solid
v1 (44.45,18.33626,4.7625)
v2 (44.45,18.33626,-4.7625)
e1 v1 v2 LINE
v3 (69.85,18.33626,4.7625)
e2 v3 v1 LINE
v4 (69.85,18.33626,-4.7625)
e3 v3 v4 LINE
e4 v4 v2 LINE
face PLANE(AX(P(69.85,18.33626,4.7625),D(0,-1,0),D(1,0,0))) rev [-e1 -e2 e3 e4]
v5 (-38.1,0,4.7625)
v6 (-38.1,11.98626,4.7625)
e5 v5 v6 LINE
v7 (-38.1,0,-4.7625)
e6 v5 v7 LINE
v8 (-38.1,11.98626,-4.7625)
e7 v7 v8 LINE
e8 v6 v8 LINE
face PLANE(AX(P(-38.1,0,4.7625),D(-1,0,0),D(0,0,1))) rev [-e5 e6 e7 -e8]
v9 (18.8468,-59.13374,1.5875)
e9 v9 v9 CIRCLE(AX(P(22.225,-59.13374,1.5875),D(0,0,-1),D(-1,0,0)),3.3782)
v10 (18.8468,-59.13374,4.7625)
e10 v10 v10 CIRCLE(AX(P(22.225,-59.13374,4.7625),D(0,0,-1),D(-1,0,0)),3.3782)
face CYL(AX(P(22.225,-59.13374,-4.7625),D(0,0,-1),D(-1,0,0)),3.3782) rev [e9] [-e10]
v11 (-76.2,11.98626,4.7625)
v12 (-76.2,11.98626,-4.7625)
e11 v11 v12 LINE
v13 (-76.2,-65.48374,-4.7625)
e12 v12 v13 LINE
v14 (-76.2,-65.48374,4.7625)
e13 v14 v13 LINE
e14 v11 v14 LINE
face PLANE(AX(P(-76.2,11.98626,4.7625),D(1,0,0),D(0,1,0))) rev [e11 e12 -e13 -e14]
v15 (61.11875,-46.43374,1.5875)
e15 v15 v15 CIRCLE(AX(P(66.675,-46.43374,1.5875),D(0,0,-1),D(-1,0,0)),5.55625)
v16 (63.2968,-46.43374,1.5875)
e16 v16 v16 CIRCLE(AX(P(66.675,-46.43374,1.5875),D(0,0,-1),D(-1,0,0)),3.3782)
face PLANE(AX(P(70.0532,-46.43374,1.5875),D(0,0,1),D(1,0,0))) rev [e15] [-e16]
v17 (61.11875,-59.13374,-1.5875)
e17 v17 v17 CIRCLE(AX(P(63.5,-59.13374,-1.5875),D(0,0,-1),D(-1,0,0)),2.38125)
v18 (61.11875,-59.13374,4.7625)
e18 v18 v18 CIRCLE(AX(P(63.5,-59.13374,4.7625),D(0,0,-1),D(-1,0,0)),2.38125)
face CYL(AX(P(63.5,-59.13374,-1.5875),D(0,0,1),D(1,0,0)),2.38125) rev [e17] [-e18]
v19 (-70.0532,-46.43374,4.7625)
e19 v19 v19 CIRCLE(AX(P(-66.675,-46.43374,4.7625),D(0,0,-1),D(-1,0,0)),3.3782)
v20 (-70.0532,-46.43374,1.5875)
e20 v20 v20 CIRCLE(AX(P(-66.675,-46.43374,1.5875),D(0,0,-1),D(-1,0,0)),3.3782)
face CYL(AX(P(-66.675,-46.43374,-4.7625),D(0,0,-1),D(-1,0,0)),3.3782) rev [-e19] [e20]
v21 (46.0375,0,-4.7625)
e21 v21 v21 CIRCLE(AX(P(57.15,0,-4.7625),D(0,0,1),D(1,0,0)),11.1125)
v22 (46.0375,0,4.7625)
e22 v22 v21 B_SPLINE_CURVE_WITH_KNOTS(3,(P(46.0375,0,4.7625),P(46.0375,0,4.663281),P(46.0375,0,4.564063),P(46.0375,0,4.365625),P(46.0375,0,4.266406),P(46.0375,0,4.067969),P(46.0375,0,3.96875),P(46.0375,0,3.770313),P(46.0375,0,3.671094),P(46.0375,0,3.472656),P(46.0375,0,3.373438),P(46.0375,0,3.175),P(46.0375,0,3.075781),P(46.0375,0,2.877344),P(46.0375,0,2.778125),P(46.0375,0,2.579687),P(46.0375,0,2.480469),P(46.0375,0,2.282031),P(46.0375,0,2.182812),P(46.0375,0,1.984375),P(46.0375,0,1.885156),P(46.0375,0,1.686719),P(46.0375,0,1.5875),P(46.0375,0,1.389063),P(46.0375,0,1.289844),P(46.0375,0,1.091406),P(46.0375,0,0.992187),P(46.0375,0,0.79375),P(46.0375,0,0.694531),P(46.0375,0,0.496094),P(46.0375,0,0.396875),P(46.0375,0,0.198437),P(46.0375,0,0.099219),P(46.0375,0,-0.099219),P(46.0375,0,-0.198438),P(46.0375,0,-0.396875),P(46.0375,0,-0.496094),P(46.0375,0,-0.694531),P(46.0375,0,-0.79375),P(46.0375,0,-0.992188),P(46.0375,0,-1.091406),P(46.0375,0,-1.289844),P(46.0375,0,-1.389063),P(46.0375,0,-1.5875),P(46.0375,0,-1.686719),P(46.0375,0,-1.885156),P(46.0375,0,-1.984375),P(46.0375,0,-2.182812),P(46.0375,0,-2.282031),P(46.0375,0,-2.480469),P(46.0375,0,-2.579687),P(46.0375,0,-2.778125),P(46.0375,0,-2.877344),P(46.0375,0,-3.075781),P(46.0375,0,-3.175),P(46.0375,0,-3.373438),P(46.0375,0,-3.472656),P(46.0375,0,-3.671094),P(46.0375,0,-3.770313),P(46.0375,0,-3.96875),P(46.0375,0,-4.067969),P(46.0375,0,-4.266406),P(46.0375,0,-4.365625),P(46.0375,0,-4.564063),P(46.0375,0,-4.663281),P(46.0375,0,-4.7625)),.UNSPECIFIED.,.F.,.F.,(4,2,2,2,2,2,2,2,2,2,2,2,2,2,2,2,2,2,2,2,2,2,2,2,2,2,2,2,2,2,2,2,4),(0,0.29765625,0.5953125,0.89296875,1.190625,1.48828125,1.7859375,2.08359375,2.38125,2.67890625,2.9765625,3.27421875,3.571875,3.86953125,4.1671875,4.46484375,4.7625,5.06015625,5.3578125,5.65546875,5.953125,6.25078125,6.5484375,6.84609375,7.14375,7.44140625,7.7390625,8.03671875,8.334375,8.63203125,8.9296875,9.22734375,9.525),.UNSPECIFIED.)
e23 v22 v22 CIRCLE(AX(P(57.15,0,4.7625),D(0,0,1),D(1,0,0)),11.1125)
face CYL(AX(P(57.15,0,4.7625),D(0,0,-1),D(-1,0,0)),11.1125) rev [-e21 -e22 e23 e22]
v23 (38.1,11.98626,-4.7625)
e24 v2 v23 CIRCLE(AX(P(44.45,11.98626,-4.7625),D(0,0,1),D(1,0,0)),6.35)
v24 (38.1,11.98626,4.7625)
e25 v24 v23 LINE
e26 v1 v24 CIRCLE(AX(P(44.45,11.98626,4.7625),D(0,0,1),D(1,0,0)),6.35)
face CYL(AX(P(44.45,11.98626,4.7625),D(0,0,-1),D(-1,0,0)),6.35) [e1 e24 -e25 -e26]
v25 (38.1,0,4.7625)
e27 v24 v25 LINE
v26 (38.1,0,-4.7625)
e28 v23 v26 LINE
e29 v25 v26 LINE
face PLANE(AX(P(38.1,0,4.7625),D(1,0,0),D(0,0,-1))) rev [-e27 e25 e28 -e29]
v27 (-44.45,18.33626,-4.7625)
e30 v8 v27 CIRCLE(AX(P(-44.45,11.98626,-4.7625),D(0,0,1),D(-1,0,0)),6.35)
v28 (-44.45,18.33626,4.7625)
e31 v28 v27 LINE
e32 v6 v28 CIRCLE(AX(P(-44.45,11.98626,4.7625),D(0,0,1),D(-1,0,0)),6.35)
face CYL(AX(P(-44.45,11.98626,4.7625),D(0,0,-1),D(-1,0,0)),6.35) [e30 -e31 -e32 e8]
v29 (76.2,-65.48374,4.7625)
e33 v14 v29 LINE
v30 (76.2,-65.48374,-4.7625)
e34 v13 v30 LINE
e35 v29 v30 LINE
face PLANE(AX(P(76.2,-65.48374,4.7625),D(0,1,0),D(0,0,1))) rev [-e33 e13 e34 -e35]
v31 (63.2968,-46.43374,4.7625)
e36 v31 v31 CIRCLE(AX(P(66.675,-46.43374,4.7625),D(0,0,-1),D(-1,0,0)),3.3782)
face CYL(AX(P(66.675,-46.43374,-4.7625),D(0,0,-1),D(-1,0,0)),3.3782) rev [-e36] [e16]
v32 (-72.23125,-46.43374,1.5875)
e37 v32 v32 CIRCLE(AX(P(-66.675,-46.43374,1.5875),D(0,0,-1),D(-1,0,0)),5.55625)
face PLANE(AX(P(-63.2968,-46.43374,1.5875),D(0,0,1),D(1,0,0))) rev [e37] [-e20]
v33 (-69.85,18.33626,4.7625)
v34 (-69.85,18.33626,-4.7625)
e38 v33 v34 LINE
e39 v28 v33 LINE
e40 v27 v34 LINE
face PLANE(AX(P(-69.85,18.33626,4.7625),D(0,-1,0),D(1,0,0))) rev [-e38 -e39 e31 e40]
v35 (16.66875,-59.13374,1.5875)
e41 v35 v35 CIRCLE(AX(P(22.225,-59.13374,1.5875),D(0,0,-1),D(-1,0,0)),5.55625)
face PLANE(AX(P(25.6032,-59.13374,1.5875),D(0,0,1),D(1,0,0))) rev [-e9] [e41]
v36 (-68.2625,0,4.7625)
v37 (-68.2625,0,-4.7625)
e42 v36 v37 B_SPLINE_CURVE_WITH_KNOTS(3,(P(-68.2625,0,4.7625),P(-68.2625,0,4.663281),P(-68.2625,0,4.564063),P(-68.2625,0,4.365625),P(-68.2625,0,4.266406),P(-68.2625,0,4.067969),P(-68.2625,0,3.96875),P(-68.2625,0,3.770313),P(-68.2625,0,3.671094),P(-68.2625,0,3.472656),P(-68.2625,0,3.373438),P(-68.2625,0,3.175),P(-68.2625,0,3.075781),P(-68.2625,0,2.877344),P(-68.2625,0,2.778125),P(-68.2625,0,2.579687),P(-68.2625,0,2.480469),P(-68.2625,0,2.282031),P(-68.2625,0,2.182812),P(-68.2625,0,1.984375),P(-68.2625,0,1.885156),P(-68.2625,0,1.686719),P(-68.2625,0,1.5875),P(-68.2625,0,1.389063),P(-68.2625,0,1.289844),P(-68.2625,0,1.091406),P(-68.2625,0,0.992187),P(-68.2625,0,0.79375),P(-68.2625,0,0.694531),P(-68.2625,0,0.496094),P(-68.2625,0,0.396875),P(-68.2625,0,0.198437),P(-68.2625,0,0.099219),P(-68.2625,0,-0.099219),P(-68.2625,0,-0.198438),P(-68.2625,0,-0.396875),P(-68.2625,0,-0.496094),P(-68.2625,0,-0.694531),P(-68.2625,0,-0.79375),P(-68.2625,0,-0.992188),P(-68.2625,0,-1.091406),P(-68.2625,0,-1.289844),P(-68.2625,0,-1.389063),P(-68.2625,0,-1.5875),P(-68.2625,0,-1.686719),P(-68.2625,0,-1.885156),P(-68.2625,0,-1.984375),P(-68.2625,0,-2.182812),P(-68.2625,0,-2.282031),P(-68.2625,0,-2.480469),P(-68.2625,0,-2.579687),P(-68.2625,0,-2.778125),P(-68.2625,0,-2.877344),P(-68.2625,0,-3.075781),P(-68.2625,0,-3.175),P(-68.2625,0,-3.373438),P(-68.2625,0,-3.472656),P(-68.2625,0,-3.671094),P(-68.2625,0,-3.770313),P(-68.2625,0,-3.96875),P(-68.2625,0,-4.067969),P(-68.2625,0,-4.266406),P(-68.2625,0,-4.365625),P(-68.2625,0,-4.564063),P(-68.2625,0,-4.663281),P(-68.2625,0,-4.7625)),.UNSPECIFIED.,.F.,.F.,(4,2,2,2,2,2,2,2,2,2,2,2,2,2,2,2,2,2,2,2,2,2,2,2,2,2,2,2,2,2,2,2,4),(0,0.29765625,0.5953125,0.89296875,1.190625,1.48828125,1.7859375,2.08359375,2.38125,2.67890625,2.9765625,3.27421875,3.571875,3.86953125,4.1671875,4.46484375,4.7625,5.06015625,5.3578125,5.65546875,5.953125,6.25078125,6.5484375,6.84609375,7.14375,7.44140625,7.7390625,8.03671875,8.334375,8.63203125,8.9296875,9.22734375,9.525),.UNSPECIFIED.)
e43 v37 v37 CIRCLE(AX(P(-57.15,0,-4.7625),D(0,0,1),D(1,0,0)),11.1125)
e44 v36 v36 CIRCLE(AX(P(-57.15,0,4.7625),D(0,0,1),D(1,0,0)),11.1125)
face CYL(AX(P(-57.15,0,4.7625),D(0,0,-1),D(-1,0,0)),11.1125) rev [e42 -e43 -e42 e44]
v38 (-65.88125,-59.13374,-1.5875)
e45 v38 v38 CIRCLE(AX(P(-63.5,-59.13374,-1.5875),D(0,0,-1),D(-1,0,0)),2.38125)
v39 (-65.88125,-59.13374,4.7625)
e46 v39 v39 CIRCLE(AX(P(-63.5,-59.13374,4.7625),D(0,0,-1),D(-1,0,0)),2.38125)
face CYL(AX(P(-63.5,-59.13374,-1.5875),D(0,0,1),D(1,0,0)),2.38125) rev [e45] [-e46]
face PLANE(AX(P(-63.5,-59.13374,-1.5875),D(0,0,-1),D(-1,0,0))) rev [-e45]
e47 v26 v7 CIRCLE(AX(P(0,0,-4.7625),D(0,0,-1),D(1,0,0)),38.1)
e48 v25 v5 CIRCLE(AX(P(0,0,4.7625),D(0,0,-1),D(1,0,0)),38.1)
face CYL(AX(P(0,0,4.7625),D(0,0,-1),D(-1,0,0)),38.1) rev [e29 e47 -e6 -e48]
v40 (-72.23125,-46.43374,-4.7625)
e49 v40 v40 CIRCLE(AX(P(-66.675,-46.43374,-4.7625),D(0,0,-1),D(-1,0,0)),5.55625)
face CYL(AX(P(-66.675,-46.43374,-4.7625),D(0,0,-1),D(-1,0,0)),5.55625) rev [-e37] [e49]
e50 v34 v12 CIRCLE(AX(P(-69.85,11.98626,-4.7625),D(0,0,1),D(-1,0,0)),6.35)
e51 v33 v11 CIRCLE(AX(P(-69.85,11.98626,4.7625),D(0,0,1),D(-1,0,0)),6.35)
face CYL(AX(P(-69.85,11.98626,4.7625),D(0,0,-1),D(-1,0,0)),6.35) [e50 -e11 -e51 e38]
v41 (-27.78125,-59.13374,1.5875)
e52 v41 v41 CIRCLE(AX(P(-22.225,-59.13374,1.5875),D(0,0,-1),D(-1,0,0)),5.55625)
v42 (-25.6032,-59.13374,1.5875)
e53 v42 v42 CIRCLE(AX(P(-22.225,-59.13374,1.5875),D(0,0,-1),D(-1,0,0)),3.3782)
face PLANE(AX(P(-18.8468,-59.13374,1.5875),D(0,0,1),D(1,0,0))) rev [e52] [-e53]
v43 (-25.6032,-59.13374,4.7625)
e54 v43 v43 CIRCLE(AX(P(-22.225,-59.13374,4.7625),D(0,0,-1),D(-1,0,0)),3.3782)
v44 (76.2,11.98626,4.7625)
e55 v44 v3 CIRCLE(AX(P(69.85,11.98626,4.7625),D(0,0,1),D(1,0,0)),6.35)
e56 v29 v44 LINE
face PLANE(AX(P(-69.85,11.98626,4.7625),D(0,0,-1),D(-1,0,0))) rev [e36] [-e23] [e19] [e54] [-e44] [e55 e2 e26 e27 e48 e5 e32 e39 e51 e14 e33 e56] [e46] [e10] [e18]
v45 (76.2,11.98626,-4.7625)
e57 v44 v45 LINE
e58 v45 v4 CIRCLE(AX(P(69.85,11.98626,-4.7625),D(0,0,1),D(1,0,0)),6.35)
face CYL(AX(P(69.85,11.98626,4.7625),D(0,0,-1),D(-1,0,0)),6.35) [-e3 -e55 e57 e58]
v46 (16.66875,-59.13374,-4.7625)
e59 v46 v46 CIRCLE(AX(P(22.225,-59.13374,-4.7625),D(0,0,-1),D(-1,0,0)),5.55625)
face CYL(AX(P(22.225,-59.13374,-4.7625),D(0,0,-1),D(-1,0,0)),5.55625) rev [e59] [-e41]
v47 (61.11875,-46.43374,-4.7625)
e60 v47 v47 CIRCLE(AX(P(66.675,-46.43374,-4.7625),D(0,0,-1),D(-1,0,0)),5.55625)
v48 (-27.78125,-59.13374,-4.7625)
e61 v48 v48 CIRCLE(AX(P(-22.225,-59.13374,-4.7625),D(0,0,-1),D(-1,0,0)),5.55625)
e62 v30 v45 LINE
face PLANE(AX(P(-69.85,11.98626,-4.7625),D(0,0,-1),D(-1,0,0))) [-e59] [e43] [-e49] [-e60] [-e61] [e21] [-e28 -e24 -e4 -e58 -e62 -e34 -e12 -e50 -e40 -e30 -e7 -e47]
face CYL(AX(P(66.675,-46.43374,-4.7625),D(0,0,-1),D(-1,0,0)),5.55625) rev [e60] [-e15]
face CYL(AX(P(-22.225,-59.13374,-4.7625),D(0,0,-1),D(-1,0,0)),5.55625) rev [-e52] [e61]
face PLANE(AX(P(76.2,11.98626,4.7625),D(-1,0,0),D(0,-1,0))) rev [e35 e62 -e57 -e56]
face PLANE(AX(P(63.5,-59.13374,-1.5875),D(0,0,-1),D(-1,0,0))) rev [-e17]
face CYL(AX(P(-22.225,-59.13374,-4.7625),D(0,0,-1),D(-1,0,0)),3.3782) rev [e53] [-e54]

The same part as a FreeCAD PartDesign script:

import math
import FreeCAD as App
import Part
import Sketcher
Q = App.Units.Quantity

doc = App.newDocument("Part")
body = doc.addObject("PartDesign::Body", "Body")

# Sketch on XY plane
sketch1 = body.newObject("Sketcher::SketchObject", "Sketch")
sketch1.AttachmentSupport = (doc.getObject("XY_Plane"), [""])
sketch1.MapMode = "FlatFace"
sketch1.addGeometry([
    Part.LineSegment(App.Vector(76, -65, 0), App.Vector(76, 12, 0)),  # 0
    Part.ArcOfCircle(Part.Circle(App.Vector(70, 12, 0), App.Vector(0, 0, 1), 6), math.radians(0), math.radians(90)),  # 1
    Part.LineSegment(App.Vector(70, 18, 0), App.Vector(44, 18, 0)),  # 2
    Part.ArcOfCircle(Part.Circle(App.Vector(44, 12, 0), App.Vector(0, 0, 1), 6), math.radians(90), math.radians(180)),  # 3
    Part.LineSegment(App.Vector(38, 12, 0), App.Vector(38, 0, 0)),  # 4
    Part.ArcOfCircle(Part.Circle(App.Vector(0, 0, 0), App.Vector(0, 0, 1), 38), math.radians(180), math.radians(360)),  # 5
    Part.LineSegment(App.Vector(-38, 0, 0), App.Vector(-38, 12, 0)),  # 6
    Part.ArcOfCircle(Part.Circle(App.Vector(-44, 12, 0), App.Vector(0, 0, 1), 6), math.radians(0), math.radians(90)),  # 7
    Part.LineSegment(App.Vector(-44, 18, 0), App.Vector(-70, 18, 0)),  # 8
    Part.ArcOfCircle(Part.Circle(App.Vector(-70, 12, 0), App.Vector(0, 0, 1), 6), math.radians(90), math.radians(180)),  # 9
    Part.LineSegment(App.Vector(-76, 12, 0), App.Vector(-76, -65, 0)),  # 10
    Part.LineSegment(App.Vector(-76, -65, 0), App.Vector(76, -65, 0)),  # 11
    Part.Circle(App.Vector(57, 0, 0), App.Vector(0, 0, 1), 11),  # 12
    Part.Circle(App.Vector(-57, 0, 0), App.Vector(0, 0, 1), 11),  # 13
], False)
sketch1.addConstraint([
    Sketcher.Constraint("Tangent", 0, 2, 1, 1),
    Sketcher.Constraint("Tangent", 1, 2, 2, 1),
    Sketcher.Constraint("Tangent", 2, 2, 3, 1),
    Sketcher.Constraint("Tangent", 3, 2, 4, 1),
    Sketcher.Constraint("Tangent", 4, 2, 5, 2),
    Sketcher.Constraint("Tangent", 5, 1, 6, 1),
    Sketcher.Constraint("Tangent", 6, 2, 7, 1),
    Sketcher.Constraint("Tangent", 7, 2, 8, 1),
    Sketcher.Constraint("Tangent", 8, 2, 9, 1),
    Sketcher.Constraint("Tangent", 9, 2, 10, 1),
    Sketcher.Constraint("Coincident", 10, 2, 11, 1),
    Sketcher.Constraint("Coincident", 11, 2, 0, 1),
    Sketcher.Constraint("Vertical", 0),
    Sketcher.Constraint("Horizontal", 2),
    Sketcher.Constraint("Vertical", 4),
    Sketcher.Constraint("Vertical", 6),
    Sketcher.Constraint("Horizontal", 8),
    Sketcher.Constraint("Vertical", 10),
    Sketcher.Constraint("Horizontal", 11),
    Sketcher.Constraint("Coincident", 5, 3, -1, 1),
    Sketcher.Constraint("Equal", 1, 3),
    Sketcher.Constraint("Equal", 3, 7),
    Sketcher.Constraint("Equal", 7, 9),
    Sketcher.Constraint("Equal", 12, 13),
    Sketcher.Constraint("Symmetric", 12, 3, 13, 3, -1, 1),
    Sketcher.Constraint("Symmetric", 1, 3, 9, 3, -2),
    Sketcher.Constraint("PointOnObject", 12, 3, -1),
    Sketcher.Constraint("Radius", 5, Q("1.5 in")),
    Sketcher.Constraint("DistanceX", 2, 2, 2, 1, Q("1 in")),
    Sketcher.Constraint("DistanceX", 11, 1, 11, 2, Q("6 in")),
    Sketcher.Constraint("Diameter", 12, Q("0.875 in")),
    Sketcher.Constraint("DistanceX", 7, 3, 12, 3, Q("4 in")),
    Sketcher.Constraint("DistanceY", 0, 1, 0, 2, Q("3.05 in")),
    Sketcher.Constraint("DistanceY", 4, 2, 4, 1, Q("0.4719 in")),
])
pad1 = body.newObject("PartDesign::Pad", "Pad")
pad1.Profile = sketch1
pad1.Length = Q("0.375 in")
pad1.Midplane = True

# Sketch on XY plane
sketch2 = body.newObject("Sketcher::SketchObject", "Sketch001")
sketch2.AttachmentSupport = (doc.getObject("XY_Plane"), [""])
sketch2.MapMode = "FlatFace"
sketch2.AttachmentOffset = App.Placement(App.Vector(0, 0, -0.1875 * 25.4), App.Rotation())
sketch2.addGeometry([
    Part.Circle(App.Vector(-66.7, -46.4, 0), App.Vector(0, 0, 1), 3.4),
    Part.Circle(App.Vector(-22.2, -59.1, 0), App.Vector(0, 0, 1), 3.4),
    Part.Circle(App.Vector(66.7, -46.4, 0), App.Vector(0, 0, 1), 3.4),
    Part.Circle(App.Vector(22.2, -59.1, 0), App.Vector(0, 0, 1), 3.4),
], False)
sketch2.addConstraint([
    Sketcher.Constraint("Equal", 0, 1),
    Sketcher.Constraint("Equal", 1, 2),
    Sketcher.Constraint("Equal", 2, 3),
    Sketcher.Constraint("Symmetric", 0, 3, 2, 3, -2),
    Sketcher.Constraint("Symmetric", 1, 3, 3, 3, -2),
    Sketcher.Constraint("Diameter", 0, Q("0.266 in")),
    Sketcher.Constraint("DistanceY", 1, 3, 0, 3, Q("0.5 in")),
    Sketcher.Constraint("DistanceX", 1, 3, 2, 3, Q("3.5 in")),
    Sketcher.Constraint("DistanceX", 0, 3, 1, 3, Q("1.75 in")),
    Sketcher.Constraint("DistanceY", 0, 3, -1, 1, Q("1.8281 in")),
])
doc.recompute()
hole = body.newObject("PartDesign::Hole", "Hole")
hole.Profile = sketch2
hole.ThreadType = "None"
hole.Diameter = Q("0.266 in")
hole.DepthType = "ThroughAll"
hole.HoleCutType = "Counterbore"
hole.HoleCutDiameter = Q("0.4375 in")
hole.HoleCutDepth = Q("0.25 in")
hole.Reversed = True

# Sketch on XY plane
sketch3 = body.newObject("Sketcher::SketchObject", "Sketch002")
sketch3.AttachmentSupport = (doc.getObject("XY_Plane"), [""])
sketch3.MapMode = "FlatFace"
sketch3.AttachmentOffset = App.Placement(App.Vector(0, 0, 0.1875 * 25.4), App.Rotation())
sketch3.addGeometry([
    Part.Circle(App.Vector(-63.5, -59.1, 0), App.Vector(0, 0, 1), 2.4),
    Part.Circle(App.Vector(63.5, -59.1, 0), App.Vector(0, 0, 1), 2.4),
], False)
sketch3.addConstraint([
    Sketcher.Constraint("Equal", 0, 1),
    Sketcher.Constraint("Symmetric", 0, 3, 1, 3, -2),
    Sketcher.Constraint("Diameter", 0, Q("0.1875 in")),
    Sketcher.Constraint("DistanceX", 0, 3, 1, 3, Q("5 in")),
    Sketcher.Constraint("DistanceY", 0, 3, -1, 1, Q("2.3281 in")),
])
pocket1 = body.newObject("PartDesign::Pocket", "Pocket")
pocket1.Profile = sketch3
pocket1.Length = Q("0.25 in")

doc.recompute()
